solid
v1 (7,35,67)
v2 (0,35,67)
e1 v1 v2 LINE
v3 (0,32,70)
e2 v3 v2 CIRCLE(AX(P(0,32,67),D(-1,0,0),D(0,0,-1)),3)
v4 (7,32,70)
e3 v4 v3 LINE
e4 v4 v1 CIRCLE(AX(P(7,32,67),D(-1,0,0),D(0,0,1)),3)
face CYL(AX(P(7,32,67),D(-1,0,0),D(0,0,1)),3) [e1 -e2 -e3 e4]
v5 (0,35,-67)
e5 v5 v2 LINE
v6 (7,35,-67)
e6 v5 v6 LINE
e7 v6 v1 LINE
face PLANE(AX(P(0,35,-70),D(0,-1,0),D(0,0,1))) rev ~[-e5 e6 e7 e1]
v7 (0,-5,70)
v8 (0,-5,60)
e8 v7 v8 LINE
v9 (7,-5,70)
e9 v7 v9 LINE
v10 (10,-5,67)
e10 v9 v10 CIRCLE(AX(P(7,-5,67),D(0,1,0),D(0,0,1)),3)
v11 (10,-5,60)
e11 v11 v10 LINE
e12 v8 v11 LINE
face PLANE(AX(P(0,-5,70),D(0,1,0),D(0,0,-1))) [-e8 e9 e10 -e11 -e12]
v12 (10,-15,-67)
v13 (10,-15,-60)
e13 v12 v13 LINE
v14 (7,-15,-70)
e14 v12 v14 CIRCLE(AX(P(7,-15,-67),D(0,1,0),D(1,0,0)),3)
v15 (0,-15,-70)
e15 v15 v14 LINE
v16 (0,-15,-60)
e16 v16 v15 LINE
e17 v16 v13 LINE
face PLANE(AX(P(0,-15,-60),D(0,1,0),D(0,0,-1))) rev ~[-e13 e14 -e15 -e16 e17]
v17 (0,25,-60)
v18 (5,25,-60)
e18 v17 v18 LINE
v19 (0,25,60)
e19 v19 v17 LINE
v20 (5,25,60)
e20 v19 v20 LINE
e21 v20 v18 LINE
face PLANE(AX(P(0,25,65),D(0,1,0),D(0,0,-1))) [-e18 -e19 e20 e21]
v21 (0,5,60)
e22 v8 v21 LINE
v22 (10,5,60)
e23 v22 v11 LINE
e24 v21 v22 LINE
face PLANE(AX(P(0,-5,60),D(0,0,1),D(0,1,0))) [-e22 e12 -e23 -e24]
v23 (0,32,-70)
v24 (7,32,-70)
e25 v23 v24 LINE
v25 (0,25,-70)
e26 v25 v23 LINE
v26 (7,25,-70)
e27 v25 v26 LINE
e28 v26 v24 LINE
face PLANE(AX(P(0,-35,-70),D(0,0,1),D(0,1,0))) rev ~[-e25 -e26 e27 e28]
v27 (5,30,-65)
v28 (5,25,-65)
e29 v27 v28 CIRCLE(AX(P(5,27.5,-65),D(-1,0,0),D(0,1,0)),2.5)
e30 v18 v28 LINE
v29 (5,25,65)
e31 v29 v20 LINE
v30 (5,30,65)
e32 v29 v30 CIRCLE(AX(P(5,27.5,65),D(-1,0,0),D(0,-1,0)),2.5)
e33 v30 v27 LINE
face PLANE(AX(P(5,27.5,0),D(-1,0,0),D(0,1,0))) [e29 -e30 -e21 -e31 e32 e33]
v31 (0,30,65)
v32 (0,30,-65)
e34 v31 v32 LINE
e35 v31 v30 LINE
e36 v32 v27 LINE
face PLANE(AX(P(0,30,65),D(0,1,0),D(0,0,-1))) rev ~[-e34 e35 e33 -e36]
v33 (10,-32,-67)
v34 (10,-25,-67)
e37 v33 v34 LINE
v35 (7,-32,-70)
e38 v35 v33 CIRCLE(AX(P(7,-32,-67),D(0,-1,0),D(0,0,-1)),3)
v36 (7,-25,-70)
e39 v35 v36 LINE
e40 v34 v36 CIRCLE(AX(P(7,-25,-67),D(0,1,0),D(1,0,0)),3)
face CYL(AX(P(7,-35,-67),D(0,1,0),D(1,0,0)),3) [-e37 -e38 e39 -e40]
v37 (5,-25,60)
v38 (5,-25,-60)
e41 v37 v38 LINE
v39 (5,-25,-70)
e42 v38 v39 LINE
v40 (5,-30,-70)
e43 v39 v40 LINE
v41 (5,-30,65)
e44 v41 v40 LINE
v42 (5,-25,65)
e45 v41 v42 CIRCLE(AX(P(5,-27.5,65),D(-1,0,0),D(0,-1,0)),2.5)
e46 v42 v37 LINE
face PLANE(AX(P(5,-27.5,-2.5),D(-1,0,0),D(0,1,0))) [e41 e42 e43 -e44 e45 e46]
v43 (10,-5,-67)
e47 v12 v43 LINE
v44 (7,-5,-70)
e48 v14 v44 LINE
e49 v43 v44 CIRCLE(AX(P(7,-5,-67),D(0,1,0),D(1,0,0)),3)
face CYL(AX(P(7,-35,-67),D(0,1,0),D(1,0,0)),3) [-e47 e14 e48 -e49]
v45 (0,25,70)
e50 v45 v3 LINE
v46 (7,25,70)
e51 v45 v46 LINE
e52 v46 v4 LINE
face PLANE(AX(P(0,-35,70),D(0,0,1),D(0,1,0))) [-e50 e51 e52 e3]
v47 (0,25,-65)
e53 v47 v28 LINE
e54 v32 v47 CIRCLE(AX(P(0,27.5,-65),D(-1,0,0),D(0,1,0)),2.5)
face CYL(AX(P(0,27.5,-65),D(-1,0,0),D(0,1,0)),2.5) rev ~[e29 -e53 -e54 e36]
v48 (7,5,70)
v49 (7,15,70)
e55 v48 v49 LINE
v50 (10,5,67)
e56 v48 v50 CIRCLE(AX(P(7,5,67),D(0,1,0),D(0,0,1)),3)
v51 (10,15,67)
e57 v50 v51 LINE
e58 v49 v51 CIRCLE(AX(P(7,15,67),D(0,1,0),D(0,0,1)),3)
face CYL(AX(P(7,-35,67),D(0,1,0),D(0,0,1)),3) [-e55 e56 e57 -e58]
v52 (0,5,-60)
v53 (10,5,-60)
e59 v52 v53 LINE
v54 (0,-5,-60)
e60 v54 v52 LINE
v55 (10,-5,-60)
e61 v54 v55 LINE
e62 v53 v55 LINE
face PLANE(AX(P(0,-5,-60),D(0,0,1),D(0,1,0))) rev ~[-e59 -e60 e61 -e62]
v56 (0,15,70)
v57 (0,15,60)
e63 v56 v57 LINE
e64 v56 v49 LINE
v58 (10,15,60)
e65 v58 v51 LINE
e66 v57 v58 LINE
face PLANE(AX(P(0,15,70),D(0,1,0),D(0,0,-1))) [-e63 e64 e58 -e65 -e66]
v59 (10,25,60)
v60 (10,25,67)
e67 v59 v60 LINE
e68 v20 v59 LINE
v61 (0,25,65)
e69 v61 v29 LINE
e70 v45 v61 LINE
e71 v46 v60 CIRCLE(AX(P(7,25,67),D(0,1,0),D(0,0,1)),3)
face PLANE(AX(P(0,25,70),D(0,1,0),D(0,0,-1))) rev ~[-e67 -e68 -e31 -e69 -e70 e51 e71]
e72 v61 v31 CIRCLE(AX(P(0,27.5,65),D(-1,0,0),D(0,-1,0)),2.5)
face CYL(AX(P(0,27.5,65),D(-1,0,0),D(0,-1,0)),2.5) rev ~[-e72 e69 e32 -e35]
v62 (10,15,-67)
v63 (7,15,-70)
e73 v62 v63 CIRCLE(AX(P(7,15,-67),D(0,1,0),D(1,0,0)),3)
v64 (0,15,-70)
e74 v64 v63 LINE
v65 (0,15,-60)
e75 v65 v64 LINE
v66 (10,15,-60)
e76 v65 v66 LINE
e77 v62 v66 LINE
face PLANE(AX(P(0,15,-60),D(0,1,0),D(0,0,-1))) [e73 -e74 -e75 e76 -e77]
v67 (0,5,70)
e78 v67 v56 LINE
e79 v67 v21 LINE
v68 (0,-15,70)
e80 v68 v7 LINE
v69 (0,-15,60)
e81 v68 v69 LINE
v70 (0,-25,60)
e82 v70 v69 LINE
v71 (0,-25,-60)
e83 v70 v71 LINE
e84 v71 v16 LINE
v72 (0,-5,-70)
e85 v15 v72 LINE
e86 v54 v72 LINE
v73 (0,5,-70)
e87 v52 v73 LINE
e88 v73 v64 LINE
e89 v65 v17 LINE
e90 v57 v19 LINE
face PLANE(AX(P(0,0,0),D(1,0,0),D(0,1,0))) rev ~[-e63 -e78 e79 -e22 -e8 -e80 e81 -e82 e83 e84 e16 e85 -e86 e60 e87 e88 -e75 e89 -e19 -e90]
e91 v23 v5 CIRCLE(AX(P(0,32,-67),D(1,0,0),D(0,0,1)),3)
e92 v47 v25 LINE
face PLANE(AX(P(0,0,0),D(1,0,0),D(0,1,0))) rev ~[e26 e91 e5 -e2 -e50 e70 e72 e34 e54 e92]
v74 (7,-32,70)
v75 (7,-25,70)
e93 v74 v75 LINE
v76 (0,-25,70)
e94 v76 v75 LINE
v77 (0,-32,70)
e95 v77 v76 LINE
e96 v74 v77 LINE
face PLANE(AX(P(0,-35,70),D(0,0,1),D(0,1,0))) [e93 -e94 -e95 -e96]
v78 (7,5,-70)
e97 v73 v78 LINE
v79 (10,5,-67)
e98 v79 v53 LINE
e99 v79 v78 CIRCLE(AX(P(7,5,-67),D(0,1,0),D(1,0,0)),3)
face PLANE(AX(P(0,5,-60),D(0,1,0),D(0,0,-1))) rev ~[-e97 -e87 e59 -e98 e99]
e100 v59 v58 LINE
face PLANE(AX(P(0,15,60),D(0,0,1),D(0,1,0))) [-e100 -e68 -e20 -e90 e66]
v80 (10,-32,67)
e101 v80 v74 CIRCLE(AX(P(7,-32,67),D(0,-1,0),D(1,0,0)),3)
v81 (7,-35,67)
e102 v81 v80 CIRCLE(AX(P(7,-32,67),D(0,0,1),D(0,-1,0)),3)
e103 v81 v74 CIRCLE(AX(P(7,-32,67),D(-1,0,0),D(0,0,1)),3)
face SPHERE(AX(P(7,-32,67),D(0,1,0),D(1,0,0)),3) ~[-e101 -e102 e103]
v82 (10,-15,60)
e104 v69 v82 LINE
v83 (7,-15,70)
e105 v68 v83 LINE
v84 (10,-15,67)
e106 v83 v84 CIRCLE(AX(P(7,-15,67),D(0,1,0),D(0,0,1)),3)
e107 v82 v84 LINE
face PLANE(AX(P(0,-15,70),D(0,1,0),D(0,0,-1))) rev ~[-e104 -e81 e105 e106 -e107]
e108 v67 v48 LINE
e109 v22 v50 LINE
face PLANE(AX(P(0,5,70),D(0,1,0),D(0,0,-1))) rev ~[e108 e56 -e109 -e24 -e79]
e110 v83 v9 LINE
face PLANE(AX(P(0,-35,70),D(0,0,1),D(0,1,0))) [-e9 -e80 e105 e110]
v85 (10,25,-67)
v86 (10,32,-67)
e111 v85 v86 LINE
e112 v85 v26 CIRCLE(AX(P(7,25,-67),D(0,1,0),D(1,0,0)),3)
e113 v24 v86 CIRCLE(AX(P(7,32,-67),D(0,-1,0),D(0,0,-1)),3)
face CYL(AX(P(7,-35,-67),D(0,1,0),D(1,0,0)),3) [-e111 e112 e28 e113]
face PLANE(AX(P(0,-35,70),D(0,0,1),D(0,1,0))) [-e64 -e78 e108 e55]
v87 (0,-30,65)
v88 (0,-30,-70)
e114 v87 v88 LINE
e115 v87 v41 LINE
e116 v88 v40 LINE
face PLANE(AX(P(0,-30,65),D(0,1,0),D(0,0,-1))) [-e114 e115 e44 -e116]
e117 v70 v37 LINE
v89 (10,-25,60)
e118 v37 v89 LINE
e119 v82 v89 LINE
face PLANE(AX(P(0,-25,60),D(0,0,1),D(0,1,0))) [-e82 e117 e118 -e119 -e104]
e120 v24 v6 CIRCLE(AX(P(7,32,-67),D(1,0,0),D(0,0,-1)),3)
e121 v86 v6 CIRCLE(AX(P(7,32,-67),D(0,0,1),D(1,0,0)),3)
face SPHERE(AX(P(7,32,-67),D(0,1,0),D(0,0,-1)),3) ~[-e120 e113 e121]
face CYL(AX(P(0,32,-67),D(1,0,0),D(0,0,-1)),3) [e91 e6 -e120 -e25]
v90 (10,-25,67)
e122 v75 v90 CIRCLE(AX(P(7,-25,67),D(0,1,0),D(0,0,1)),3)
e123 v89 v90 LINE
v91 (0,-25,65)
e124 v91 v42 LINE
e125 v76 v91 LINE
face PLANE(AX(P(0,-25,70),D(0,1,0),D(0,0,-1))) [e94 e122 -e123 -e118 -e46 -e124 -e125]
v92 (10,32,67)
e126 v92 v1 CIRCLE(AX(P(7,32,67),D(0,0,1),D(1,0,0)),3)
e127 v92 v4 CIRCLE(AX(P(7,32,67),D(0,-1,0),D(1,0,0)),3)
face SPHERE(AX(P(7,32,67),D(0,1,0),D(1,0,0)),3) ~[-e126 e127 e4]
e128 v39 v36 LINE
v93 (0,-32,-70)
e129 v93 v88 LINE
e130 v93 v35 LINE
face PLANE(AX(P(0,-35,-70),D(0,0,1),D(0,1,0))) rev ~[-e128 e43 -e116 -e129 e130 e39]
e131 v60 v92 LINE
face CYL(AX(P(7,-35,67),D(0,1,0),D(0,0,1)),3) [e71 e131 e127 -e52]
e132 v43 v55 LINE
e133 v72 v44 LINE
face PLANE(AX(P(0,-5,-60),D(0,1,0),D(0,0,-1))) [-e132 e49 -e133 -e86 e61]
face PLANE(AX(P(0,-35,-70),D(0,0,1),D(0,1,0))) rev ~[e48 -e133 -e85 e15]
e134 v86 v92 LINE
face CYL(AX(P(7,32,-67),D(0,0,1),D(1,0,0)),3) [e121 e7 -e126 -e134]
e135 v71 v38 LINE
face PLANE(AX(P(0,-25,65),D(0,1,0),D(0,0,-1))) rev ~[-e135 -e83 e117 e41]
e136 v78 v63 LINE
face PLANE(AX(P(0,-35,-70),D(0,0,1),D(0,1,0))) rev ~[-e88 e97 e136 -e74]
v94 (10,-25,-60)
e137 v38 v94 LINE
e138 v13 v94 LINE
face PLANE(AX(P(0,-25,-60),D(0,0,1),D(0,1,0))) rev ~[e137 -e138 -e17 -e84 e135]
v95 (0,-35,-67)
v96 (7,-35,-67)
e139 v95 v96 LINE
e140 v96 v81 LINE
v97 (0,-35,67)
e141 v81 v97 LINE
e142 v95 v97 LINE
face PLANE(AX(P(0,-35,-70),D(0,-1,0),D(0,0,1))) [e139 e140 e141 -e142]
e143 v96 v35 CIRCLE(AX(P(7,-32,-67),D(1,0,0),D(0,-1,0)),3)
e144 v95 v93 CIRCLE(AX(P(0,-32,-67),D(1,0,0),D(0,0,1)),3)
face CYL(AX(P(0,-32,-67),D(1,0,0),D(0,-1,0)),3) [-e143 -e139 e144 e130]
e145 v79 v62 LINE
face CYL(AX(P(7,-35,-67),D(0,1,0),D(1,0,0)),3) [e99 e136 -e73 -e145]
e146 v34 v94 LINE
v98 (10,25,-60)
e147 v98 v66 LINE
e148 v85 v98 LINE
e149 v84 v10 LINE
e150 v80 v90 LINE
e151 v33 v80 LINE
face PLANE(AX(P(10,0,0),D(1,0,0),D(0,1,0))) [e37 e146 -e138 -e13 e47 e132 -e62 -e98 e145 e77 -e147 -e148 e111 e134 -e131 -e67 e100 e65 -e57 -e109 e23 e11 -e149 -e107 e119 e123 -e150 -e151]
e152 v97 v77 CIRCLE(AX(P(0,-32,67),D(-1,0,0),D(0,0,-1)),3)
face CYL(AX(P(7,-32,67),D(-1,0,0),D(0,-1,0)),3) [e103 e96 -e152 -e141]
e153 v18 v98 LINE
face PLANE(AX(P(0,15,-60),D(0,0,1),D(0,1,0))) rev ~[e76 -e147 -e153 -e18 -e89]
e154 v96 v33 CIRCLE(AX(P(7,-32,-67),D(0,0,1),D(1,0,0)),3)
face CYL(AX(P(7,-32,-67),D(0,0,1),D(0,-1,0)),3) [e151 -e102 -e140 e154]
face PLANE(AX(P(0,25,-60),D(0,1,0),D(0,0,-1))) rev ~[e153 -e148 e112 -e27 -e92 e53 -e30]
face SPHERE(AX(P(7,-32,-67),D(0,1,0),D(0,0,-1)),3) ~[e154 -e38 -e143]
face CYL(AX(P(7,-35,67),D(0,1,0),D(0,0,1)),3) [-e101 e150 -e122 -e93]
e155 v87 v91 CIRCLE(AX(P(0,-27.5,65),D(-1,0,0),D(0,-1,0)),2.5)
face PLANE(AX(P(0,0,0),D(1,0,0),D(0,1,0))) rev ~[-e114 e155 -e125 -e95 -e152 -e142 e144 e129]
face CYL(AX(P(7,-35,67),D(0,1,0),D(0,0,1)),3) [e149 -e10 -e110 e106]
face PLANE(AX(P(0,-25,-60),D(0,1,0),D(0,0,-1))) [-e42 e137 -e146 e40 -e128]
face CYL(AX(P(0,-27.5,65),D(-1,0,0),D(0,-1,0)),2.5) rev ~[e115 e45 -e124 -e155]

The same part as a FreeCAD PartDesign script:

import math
import FreeCAD as App
import Part
import Sketcher
Q = App.Units.Quantity


def edges_at(feature, points):
    """Names of the edges that pass closest to the given points."""
    edges = feature.Shape.Edges
    near = lambda p: min(range(len(edges)), key=lambda i: edges[i].distToShape(Part.Vertex(*p))[0])
    return sorted({f"Edge{near(p) + 1}" for p in points})

doc = App.newDocument("Part")
body = doc.addObject("PartDesign::Body", "Body")

# Sketch on YZ plane
sketch1 = body.newObject("Sketcher::SketchObject", "Sketch")
sketch1.AttachmentSupport = (doc.getObject("YZ_Plane"), [""])
sketch1.MapMode = "FlatFace"
sketch1.addGeometry([
    Part.LineSegment(App.Vector(-35, 70, 0), App.Vector(-35, -70, 0)),
    Part.LineSegment(App.Vector(-35, -70, 0), App.Vector(35, -70, 0)),
    Part.LineSegment(App.Vector(35, -70, 0), App.Vector(35, 70, 0)),
    Part.LineSegment(App.Vector(35, 70, 0), App.Vector(-35, 70, 0)),
], False)
sketch1.addConstraint([
    Sketcher.Constraint("Coincident", 0, 2, 1, 1),
    Sketcher.Constraint("Coincident", 1, 2, 2, 1),
    Sketcher.Constraint("Coincident", 2, 2, 3, 1),
    Sketcher.Constraint("Coincident", 3, 2, 0, 1),
    Sketcher.Constraint("Vertical", 0),
    Sketcher.Constraint("Horizontal", 1),
    Sketcher.Constraint("Vertical", 2),
    Sketcher.Constraint("Horizontal", 3),
    Sketcher.Constraint("Symmetric", 0, 2, 2, 2, -1, 1),
    Sketcher.Constraint("DistanceX", 1, 1, 1, 2, Q("70 mm")),
    Sketcher.Constraint("DistanceY", 0, 2, 0, 1, Q("140 mm")),
])
pad1 = body.newObject("PartDesign::Pad", "Pad")
pad1.Profile = sketch1
pad1.Length = 10
doc.recompute()

fillet = body.newObject("PartDesign::Fillet", "Fillet")
fillet.Base = (pad1, edges_at(pad1, [(10, 0, 70)]))
fillet.Radius = 3
doc.recompute()

fillet2 = body.newObject("PartDesign::Fillet", "Fillet001")
fillet2.Base = (fillet, edges_at(fillet, [(10, 0, -70)]))
fillet2.Radius = 3

# Sketch on YZ plane
sketch2 = body.newObject("Sketcher::SketchObject", "Sketch001")
sketch2.AttachmentSupport = (doc.getObject("YZ_Plane"), [""])
sketch2.MapMode = "FlatFace"
sketch2.addGeometry([
    Part.LineSegment(App.Vector(-25, -70, 0), App.Vector(-25, -60, 0)),  # 0
    Part.LineSegment(App.Vector(-25, -60, 0), App.Vector(-15, -60, 0)),  # 1
    Part.LineSegment(App.Vector(-15, -60, 0), App.Vector(-15, -70, 0)),  # 2
    Part.LineSegment(App.Vector(-15, -70, 0), App.Vector(-25, -70, 0)),  # 3
    Part.LineSegment(App.Vector(-5, -70, 0), App.Vector(-5, -60, 0)),  # 4
    Part.LineSegment(App.Vector(-5, -60, 0), App.Vector(5, -60, 0)),  # 5
    Part.LineSegment(App.Vector(5, -60, 0), App.Vector(5, -70, 0)),  # 6
    Part.LineSegment(App.Vector(5, -70, 0), App.Vector(-5, -70, 0)),  # 7
    Part.LineSegment(App.Vector(15, -70, 0), App.Vector(15, -60, 0)),  # 8
    Part.LineSegment(App.Vector(15, -60, 0), App.Vector(25, -60, 0)),  # 9
    Part.LineSegment(App.Vector(25, -60, 0), App.Vector(25, -70, 0)),  # 10
    Part.LineSegment(App.Vector(25, -70, 0), App.Vector(15, -70, 0)),  # 11
    Part.LineSegment(App.Vector(-25, 60, 0), App.Vector(-25, 70, 0)),  # 12
    Part.LineSegment(App.Vector(-25, 70, 0), App.Vector(-15, 70, 0)),  # 13
    Part.LineSegment(App.Vector(-15, 70, 0), App.Vector(-15, 60, 0)),  # 14
    Part.LineSegment(App.Vector(-15, 60, 0), App.Vector(-25, 60, 0)),  # 15
    Part.LineSegment(App.Vector(-5, 60, 0), App.Vector(-5, 70, 0)),  # 16
    Part.LineSegment(App.Vector(-5, 70, 0), App.Vector(5, 70, 0)),  # 17
    Part.LineSegment(App.Vector(5, 70, 0), App.Vector(5, 60, 0)),  # 18
    Part.LineSegment(App.Vector(5, 60, 0), App.Vector(-5, 60, 0)),  # 19
    Part.LineSegment(App.Vector(15, 60, 0), App.Vector(15, 70, 0)),  # 20
    Part.LineSegment(App.Vector(15, 70, 0), App.Vector(25, 70, 0)),  # 21
    Part.LineSegment(App.Vector(25, 70, 0), App.Vector(25, 60, 0)),  # 22
    Part.LineSegment(App.Vector(25, 60, 0), App.Vector(15, 60, 0)),  # 23
], False)
sketch2.addConstraint([
    Sketcher.Constraint("Coincident", 0, 2, 1, 1),
    Sketcher.Constraint("Coincident", 1, 2, 2, 1),
    Sketcher.Constraint("Coincident", 2, 2, 3, 1),
    Sketcher.Constraint("Coincident", 3, 2, 0, 1),
    Sketcher.Constraint("Coincident", 4, 2, 5, 1),
    Sketcher.Constraint("Coincident", 5, 2, 6, 1),
    Sketcher.Constraint("Coincident", 6, 2, 7, 1),
    Sketcher.Constraint("Coincident", 7, 2, 4, 1),
    Sketcher.Constraint("Coincident", 8, 2, 9, 1),
    Sketcher.Constraint("Coincident", 9, 2, 10, 1),
    Sketcher.Constraint("Coincident", 10, 2, 11, 1),
    Sketcher.Constraint("Coincident", 11, 2, 8, 1),
    Sketcher.Constraint("Coincident", 12, 2, 13, 1),
    Sketcher.Constraint("Coincident", 13, 2, 14, 1),
    Sketcher.Constraint("Coincident", 14, 2, 15, 1),
    Sketcher.Constraint("Coincident", 15, 2, 12, 1),
    Sketcher.Constraint("Coincident", 16, 2, 17, 1),
    Sketcher.Constraint("Coincident", 17, 2, 18, 1),
    Sketcher.Constraint("Coincident", 18, 2, 19, 1),
    Sketcher.Constraint("Coincident", 19, 2, 16, 1),
    Sketcher.Constraint("Coincident", 20, 2, 21, 1),
    Sketcher.Constraint("Coincident", 21, 2, 22, 1),
    Sketcher.Constraint("Coincident", 22, 2, 23, 1),
    Sketcher.Constraint("Coincident", 23, 2, 20, 1),
    Sketcher.Constraint("Vertical", 0),
    Sketcher.Constraint("Horizontal", 1),
    Sketcher.Constraint("Vertical", 2),
    Sketcher.Constraint("Horizontal", 3),
    Sketcher.Constraint("Vertical", 4),
    Sketcher.Constraint("Horizontal", 5),
    Sketcher.Constraint("Vertical", 6),
    Sketcher.Constraint("Horizontal", 7),
    Sketcher.Constraint("Vertical", 8),
    Sketcher.Constraint("Horizontal", 9),
    Sketcher.Constraint("Vertical", 10),
    Sketcher.Constraint("Horizontal", 11),
    Sketcher.Constraint("Vertical", 12),
    Sketcher.Constraint("Horizontal", 13),
    Sketcher.Constraint("Vertical", 14),
    Sketcher.Constraint("Horizontal", 15),
    Sketcher.Constraint("Vertical", 16),
    Sketcher.Constraint("Horizontal", 17),
    Sketcher.Constraint("Vertical", 18),
    Sketcher.Constraint("Horizontal", 19),
    Sketcher.Constraint("Vertical", 20),
    Sketcher.Constraint("Horizontal", 21),
    Sketcher.Constraint("Vertical", 22),
    Sketcher.Constraint("Horizontal", 23),
    Sketcher.Constraint("Symmetric", 10, 2, 12, 2, -1, 1),
    Sketcher.Constraint("Symmetric", 8, 2, 14, 2, -1, 1),
    Sketcher.Constraint("Symmetric", 6, 2, 16, 2, -1, 1),
    Sketcher.Constraint("Symmetric", 4, 2, 18, 2, -1, 1),
    Sketcher.Constraint("Symmetric", 2, 2, 20, 2, -1, 1),
    Sketcher.Constraint("Symmetric", 0, 2, 22, 2, -1, 1),
    Sketcher.Constraint("Symmetric", 1, 2, 8, 2, -2),
    Sketcher.Constraint("Symmetric", 3, 2, 10, 2, -2),
    Sketcher.Constraint("Horizontal", 1, 2, 4, 2),
    Sketcher.Constraint("Horizontal", 3, 2, 6, 2),
    Sketcher.Constraint("Vertical", 7, 2, 16, 2),
    Sketcher.Constraint("Equal", 3, 5),
    Sketcher.Constraint("Equal", 23, 0),
    Sketcher.Constraint("DistanceX", 1, 1, 1, 2, Q("10 mm")),
    Sketcher.Constraint("DistanceX", 0, 2, -1, 1, Q("25 mm")),
    Sketcher.Constraint("DistanceY", 0, 2, -1, 1, Q("60 mm")),
])
pocket1 = body.newObject("PartDesign::Pocket", "Pocket")
pocket1.Profile = sketch2
pocket1.Type = "ThroughAll"
pocket1.Reversed = True

# Sketch on YZ plane
sketch3 = body.newObject("Sketcher::SketchObject", "Sketch002")
sketch3.AttachmentSupport = (doc.getObject("YZ_Plane"), [""])
sketch3.MapMode = "FlatFace"
sketch3.addGeometry([
    Part.ArcOfCircle(Part.Circle(App.Vector(27.5, 65, 0), App.Vector(0, 0, 1), 2.5), math.radians(0), math.radians(180)),  # 0
    Part.LineSegment(App.Vector(30, 65, 0), App.Vector(30, -65, 0)),  # 1
    Part.ArcOfCircle(Part.Circle(App.Vector(27.5, -65, 0), App.Vector(0, 0, 1), 2.5), math.radians(180), math.radians(360)),  # 2
    Part.LineSegment(App.Vector(25, -65, 0), App.Vector(25, 65, 0)),  # 3
    Part.ArcOfCircle(Part.Circle(App.Vector(-27.5, 65, 0), App.Vector(0, 0, 1), 2.5), math.radians(0), math.radians(180)),  # 4
    Part.LineSegment(App.Vector(-25, 65, 0), App.Vector(-25, -70, 0)),  # 5
    Part.ArcOfCircle(Part.Circle(App.Vector(-27.5, -70, 0), App.Vector(0, 0, 1), 2.5), math.radians(180), math.radians(360)),  # 6
    Part.LineSegment(App.Vector(-30, -70, 0), App.Vector(-30, 65, 0)),  # 7
], False)
sketch3.addConstraint([
    Sketcher.Constraint("Tangent", 0, 1, 1, 1),
    Sketcher.Constraint("Tangent", 1, 2, 2, 2),
    Sketcher.Constraint("Tangent", 2, 1, 3, 1),
    Sketcher.Constraint("Tangent", 3, 2, 0, 2),
    Sketcher.Constraint("Tangent", 4, 1, 5, 1),
    Sketcher.Constraint("Tangent", 5, 2, 6, 2),
    Sketcher.Constraint("Tangent", 6, 1, 7, 1),
    Sketcher.Constraint("Tangent", 7, 2, 4, 2),
    Sketcher.Constraint("Vertical", 1),
    Sketcher.Constraint("Vertical", 3),
    Sketcher.Constraint("Vertical", 5),
    Sketcher.Constraint("Vertical", 7),
    Sketcher.Constraint("Equal", 2, 4),
    Sketcher.Constraint("Symmetric", 2, 3, 4, 3, -1, 1),
    Sketcher.Constraint("Horizontal", 0, 3, 4, 3),
    Sketcher.Constraint("Radius", 0, Q("2.5 mm")),
    Sketcher.Constraint("DistanceY", 1, 2, 1, 1, Q("130 mm")),
    Sketcher.Constraint("DistanceY", 5, 2, 5, 1, Q("135 mm")),
    Sketcher.Constraint("DistanceX", -1, 1, 0, 1, Q("30 mm")),
])
pocket2 = body.newObject("PartDesign::Pocket", "Pocket001")
pocket2.Profile = sketch3
pocket2.Length = 5
pocket2.Reversed = True
doc.recompute()

fillet3 = body.newObject("PartDesign::Fillet", "Fillet002")
fillet3.Base = (pocket2, edges_at(pocket2, [(10, -35, 0)]))
fillet3.Radius = 3
doc.recompute()

fillet4 = body.newObject("PartDesign::Fillet", "Fillet003")
fillet4.Base = (fillet3, edges_at(fillet3, [(10, 35, 0)]))
fillet4.Radius = 3

doc.recompute()
